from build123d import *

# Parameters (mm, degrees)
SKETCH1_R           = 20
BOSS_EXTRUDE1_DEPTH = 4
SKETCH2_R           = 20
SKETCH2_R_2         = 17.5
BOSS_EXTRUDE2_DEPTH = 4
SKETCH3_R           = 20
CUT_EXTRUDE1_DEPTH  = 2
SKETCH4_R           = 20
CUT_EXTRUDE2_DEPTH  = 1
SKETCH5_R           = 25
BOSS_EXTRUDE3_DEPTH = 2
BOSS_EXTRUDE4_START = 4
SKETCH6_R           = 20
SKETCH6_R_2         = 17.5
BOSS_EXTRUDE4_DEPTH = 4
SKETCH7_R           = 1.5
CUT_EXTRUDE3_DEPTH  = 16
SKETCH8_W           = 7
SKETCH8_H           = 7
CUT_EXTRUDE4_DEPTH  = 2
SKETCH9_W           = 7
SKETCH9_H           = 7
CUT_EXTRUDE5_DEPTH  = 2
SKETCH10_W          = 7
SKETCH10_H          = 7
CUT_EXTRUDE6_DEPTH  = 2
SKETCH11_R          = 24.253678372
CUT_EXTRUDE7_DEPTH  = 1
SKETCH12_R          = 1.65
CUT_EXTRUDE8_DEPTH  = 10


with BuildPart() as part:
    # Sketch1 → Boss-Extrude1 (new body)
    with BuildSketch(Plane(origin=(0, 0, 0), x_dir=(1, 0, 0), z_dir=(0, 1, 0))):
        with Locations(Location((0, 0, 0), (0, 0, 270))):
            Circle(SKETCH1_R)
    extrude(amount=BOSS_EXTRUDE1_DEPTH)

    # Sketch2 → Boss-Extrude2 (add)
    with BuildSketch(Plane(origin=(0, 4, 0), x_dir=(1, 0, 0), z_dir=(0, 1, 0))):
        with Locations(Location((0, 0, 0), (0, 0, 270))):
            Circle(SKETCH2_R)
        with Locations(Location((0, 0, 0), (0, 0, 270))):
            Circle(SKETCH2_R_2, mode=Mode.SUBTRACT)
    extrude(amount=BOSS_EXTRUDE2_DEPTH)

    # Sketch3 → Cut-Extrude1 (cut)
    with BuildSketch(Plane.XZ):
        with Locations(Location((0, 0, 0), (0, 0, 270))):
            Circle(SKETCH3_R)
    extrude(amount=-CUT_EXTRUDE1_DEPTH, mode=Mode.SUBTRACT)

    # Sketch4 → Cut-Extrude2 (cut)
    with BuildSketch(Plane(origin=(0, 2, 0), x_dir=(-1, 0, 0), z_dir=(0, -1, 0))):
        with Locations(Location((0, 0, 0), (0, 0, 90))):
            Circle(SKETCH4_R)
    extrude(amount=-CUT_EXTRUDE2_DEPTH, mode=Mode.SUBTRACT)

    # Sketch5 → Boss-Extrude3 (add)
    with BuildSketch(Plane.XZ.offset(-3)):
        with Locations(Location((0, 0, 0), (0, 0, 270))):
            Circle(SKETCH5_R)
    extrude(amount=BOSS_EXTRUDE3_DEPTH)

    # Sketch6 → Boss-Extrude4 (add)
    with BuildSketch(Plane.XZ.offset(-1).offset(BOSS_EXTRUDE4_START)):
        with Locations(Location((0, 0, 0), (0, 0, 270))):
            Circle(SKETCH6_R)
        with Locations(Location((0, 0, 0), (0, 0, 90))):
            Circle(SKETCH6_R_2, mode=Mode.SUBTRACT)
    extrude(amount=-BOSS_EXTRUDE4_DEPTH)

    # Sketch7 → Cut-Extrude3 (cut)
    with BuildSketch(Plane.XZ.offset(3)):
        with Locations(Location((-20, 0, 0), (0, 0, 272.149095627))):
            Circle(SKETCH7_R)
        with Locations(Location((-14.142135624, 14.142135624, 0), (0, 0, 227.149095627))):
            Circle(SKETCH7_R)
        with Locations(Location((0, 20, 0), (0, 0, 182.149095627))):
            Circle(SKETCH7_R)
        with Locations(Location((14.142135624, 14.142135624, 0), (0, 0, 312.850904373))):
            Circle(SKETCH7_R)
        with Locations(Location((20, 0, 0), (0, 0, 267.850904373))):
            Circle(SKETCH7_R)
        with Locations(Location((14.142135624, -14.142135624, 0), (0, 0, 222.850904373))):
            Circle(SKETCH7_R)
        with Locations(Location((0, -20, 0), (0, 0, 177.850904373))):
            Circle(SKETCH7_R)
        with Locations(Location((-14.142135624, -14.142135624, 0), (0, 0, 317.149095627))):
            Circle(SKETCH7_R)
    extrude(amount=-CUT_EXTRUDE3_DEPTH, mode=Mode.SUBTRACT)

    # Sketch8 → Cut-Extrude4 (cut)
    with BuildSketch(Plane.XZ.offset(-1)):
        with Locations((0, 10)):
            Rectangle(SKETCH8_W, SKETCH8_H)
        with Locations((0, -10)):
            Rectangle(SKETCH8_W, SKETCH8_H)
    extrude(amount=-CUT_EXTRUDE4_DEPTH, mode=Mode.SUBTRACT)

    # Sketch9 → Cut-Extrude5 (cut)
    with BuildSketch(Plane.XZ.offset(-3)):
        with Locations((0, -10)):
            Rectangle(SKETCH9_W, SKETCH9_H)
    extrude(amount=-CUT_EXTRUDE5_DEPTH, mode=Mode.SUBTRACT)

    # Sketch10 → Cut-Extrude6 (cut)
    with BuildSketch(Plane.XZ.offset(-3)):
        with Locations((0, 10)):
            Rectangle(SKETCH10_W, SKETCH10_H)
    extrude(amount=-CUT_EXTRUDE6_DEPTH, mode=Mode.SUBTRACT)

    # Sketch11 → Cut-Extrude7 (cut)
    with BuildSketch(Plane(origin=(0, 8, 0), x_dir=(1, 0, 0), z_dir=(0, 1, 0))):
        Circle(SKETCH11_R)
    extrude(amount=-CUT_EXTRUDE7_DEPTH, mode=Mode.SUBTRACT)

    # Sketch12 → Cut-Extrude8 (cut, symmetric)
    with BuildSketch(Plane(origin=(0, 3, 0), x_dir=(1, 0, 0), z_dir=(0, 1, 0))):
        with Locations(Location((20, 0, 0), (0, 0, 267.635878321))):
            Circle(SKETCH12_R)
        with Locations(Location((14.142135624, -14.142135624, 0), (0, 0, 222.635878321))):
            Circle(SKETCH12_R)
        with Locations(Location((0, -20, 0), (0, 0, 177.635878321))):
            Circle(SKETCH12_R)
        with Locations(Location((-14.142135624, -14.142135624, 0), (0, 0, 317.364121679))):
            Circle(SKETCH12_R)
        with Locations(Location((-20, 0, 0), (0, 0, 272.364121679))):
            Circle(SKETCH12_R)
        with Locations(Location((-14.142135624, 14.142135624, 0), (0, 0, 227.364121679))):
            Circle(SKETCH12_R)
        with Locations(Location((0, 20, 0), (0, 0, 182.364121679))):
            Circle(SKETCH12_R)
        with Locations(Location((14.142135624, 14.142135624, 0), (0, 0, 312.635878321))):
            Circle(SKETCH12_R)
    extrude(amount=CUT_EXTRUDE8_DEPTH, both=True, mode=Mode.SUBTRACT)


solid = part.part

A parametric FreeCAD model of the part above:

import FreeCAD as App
import Part
import Sketcher
from FreeCAD import Vector
Q = App.Units.Quantity

doc = App.newDocument("Part")
params = doc.addObject("Spreadsheet::Sheet", "Params")
for row, (alias, value) in enumerate([
    ("sketch1_diameter", "40 mm"),
    ("pad1_length", "4 mm"),
    ("sketch2_diameter", "40 mm"),
    ("sketch2_diameter2", "35 mm"),
    ("pad2_length", "4 mm"),
    ("sketch3_diameter", "40 mm"),
    ("pocket1_length", "2 mm"),
    ("sketch4_diameter", "40 mm"),
    ("pocket2_length", "1 mm"),
    ("sketch5_diameter", "50 mm"),
    ("pad3_length", "2 mm"),
    ("sketch6_diameter", "40 mm"),
    ("sketch6_diameter2", "35 mm"),
    ("pad4_length", "4 mm"),
    ("sketch7_diameter", "3 mm"),
    ("pocket3_length", "16 mm"),
    ("sketch8_width", "7 mm"),
    ("pocket4_length", "2 mm"),
    ("sketch9_width", "7 mm"),
    ("pocket5_length", "2 mm"),
    ("sketch10_width", "7 mm"),
    ("pocket6_length", "2 mm"),
    ("pocket7_length", "1 mm"),
    ("sketch12_diameter", "3.3 mm"),
    ("pocket8_length", "20 mm"),
], start=1):
    params.set(f"A{row}", alias)
    params.set(f"B{row}", "=" + value)
    params.setAlias(f"B{row}", alias)

body = doc.addObject("PartDesign::Body", "Body")

# Sketch on XZ plane
sketch1 = doc.addObject("Sketcher::SketchObject", "Sketch")
body.addObject(sketch1)
sketch1.AttachmentSupport = (doc.XZ_Plane, [""])
sketch1.MapMode = "FlatFace"
sketch1.addGeometry(Part.Circle(Vector(0, 0, 0), Vector(0, 0, 1), 20), False)
sketch1.addConstraint(Sketcher.Constraint("Coincident", 0, 3, -1, 1))
sketch1.addConstraint(Sketcher.Constraint("Diameter", 0, Q("40 mm")))
sketch1.setExpression("Constraints[1]", "Params.sketch1_diameter")
pad1 = doc.addObject("PartDesign::Pad", "Pad")
body.addObject(pad1)
pad1.Profile = sketch1
pad1.setExpression("Length", "Params.pad1_length")
pad1.Reversed = True

# Sketch on XZ plane
sketch2 = doc.addObject("Sketcher::SketchObject", "Sketch001")
body.addObject(sketch2)
sketch2.AttachmentSupport = (doc.XZ_Plane, [""])
sketch2.MapMode = "FlatFace"
sketch2.AttachmentOffset = App.Placement(Vector(0, 0, -4), App.Rotation())
sketch2.addGeometry(Part.Circle(Vector(0, 0, 0), Vector(0, 0, 1), 20), False)
sketch2.addGeometry(Part.Circle(Vector(0, 0, 0), Vector(0, 0, 1), 17.5), False)
sketch2.addConstraint(Sketcher.Constraint("Coincident", 0, 3, -1, 1))
sketch2.addConstraint(Sketcher.Constraint("Coincident", 1, 3, -1, 1))
sketch2.addConstraint(Sketcher.Constraint("Diameter", 0, Q("40 mm")))
sketch2.addConstraint(Sketcher.Constraint("Diameter", 1, Q("35 mm")))
sketch2.setExpression("Constraints[2]", "Params.sketch2_diameter")
sketch2.setExpression("Constraints[3]", "Params.sketch2_diameter2")
pad2 = doc.addObject("PartDesign::Pad", "Pad001")
body.addObject(pad2)
pad2.Profile = sketch2
pad2.setExpression("Length", "Params.pad2_length")
pad2.Reversed = True

# Sketch on XZ plane
sketch3 = doc.addObject("Sketcher::SketchObject", "Sketch002")
body.addObject(sketch3)
sketch3.AttachmentSupport = (doc.XZ_Plane, [""])
sketch3.MapMode = "FlatFace"
sketch3.addGeometry(Part.Circle(Vector(0, 0, 0), Vector(0, 0, 1), 20), False)
sketch3.addConstraint(Sketcher.Constraint("Coincident", 0, 3, -1, 1))
sketch3.addConstraint(Sketcher.Constraint("Diameter", 0, Q("40 mm")))
sketch3.setExpression("Constraints[1]", "Params.sketch3_diameter")
pocket1 = doc.addObject("PartDesign::Pocket", "Pocket")
body.addObject(pocket1)
pocket1.Profile = sketch3
pocket1.setExpression("Length", "Params.pocket1_length")

# Sketch on XZ plane
sketch4 = doc.addObject("Sketcher::SketchObject", "Sketch003")
body.addObject(sketch4)
sketch4.AttachmentSupport = (doc.XZ_Plane, [""])
sketch4.MapMode = "FlatFace"
sketch4.AttachmentOffset = App.Placement(Vector(0, 0, -2), App.Rotation())
sketch4.addGeometry(Part.Circle(Vector(0, 0, 0), Vector(0, 0, 1), 20), False)
sketch4.addConstraint(Sketcher.Constraint("Coincident", 0, 3, -1, 1))
sketch4.addConstraint(Sketcher.Constraint("Diameter", 0, Q("40 mm")))
sketch4.setExpression("Constraints[1]", "Params.sketch4_diameter")
pocket2 = doc.addObject("PartDesign::Pocket", "Pocket001")
body.addObject(pocket2)
pocket2.Profile = sketch4
pocket2.setExpression("Length", "Params.pocket2_length")

# Sketch on XZ plane
sketch5 = doc.addObject("Sketcher::SketchObject", "Sketch004")
body.addObject(sketch5)
sketch5.AttachmentSupport = (doc.XZ_Plane, [""])
sketch5.MapMode = "FlatFace"
sketch5.AttachmentOffset = App.Placement(Vector(0, 0, -3), App.Rotation())
sketch5.addGeometry(Part.Circle(Vector(0, 0, 0), Vector(0, 0, 1), 25), False)
sketch5.addConstraint(Sketcher.Constraint("Coincident", 0, 3, -1, 1))
sketch5.addConstraint(Sketcher.Constraint("Diameter", 0, Q("50 mm")))
sketch5.setExpression("Constraints[1]", "Params.sketch5_diameter")
pad3 = doc.addObject("PartDesign::Pad", "Pad002")
body.addObject(pad3)
pad3.Profile = sketch5
pad3.setExpression("Length", "Params.pad3_length")

# Sketch on XZ plane
sketch6 = doc.addObject("Sketcher::SketchObject", "Sketch005")
body.addObject(sketch6)
sketch6.AttachmentSupport = (doc.XZ_Plane, [""])
sketch6.MapMode = "FlatFace"
sketch6.AttachmentOffset = App.Placement(Vector(0, 0, 3), App.Rotation())
sketch6.addGeometry(Part.Circle(Vector(0, 0, 0), Vector(0, 0, 1), 20), False)
sketch6.addGeometry(Part.Circle(Vector(0, 0, 0), Vector(0, 0, 1), 17.5), False)
sketch6.addConstraint(Sketcher.Constraint("Coincident", 0, 3, -1, 1))
sketch6.addConstraint(Sketcher.Constraint("Coincident", 1, 3, -1, 1))
sketch6.addConstraint(Sketcher.Constraint("Diameter", 0, Q("40 mm")))
sketch6.addConstraint(Sketcher.Constraint("Diameter", 1, Q("35 mm")))
sketch6.setExpression("Constraints[2]", "Params.sketch6_diameter")
sketch6.setExpression("Constraints[3]", "Params.sketch6_diameter2")
pad4 = doc.addObject("PartDesign::Pad", "Pad003")
body.addObject(pad4)
pad4.Profile = sketch6
pad4.setExpression("Length", "Params.pad4_length")
pad4.Reversed = True

# Sketch on XZ plane
sketch7 = doc.addObject("Sketcher::SketchObject", "Sketch006")
body.addObject(sketch7)
sketch7.AttachmentSupport = (doc.XZ_Plane, [""])
sketch7.MapMode = "FlatFace"
sketch7.AttachmentOffset = App.Placement(Vector(0, 0, 3), App.Rotation())
sketch7.addGeometry(Part.Circle(Vector(-20, 0, 0), Vector(0, 0, 1), 1.5), False)
sketch7.addGeometry(Part.Circle(Vector(-14.142136, 14.142136, 0), Vector(0, 0, 1), 1.5), False)
sketch7.addGeometry(Part.Circle(Vector(0, 20, 0), Vector(0, 0, 1), 1.5), False)
sketch7.addGeometry(Part.Circle(Vector(14.142136, 14.142136, 0), Vector(0, 0, 1), 1.5), False)
sketch7.addGeometry(Part.Circle(Vector(20, 0, 0), Vector(0, 0, 1), 1.5), False)
sketch7.addGeometry(Part.Circle(Vector(14.142136, -14.142136, 0), Vector(0, 0, 1), 1.5), False)
sketch7.addGeometry(Part.Circle(Vector(0, -20, 0), Vector(0, 0, 1), 1.5), False)
sketch7.addGeometry(Part.Circle(Vector(-14.142136, -14.142136, 0), Vector(0, 0, 1), 1.5), False)
sketch7.addConstraint(Sketcher.Constraint("Equal", 0, 1))
sketch7.addConstraint(Sketcher.Constraint("Equal", 1, 2))
sketch7.addConstraint(Sketcher.Constraint("Equal", 2, 3))
sketch7.addConstraint(Sketcher.Constraint("Equal", 3, 4))
sketch7.addConstraint(Sketcher.Constraint("Equal", 4, 5))
sketch7.addConstraint(Sketcher.Constraint("Equal", 5, 6))
sketch7.addConstraint(Sketcher.Constraint("Equal", 6, 7))
sketch7.addConstraint(Sketcher.Constraint("Symmetric", 0, 3, 4, 3, -1, 1))
sketch7.addConstraint(Sketcher.Constraint("Symmetric", 1, 3, 5, 3, -1, 1))
sketch7.addConstraint(Sketcher.Constraint("Symmetric", 2, 3, 6, 3, -1, 1))
sketch7.addConstraint(Sketcher.Constraint("Symmetric", 3, 3, 7, 3, -1, 1))
sketch7.addConstraint(Sketcher.Constraint("Symmetric", 1, 3, 3, 3, -2))
sketch7.addConstraint(Sketcher.Constraint("PointOnObject", 0, 3, -1))
sketch7.addConstraint(Sketcher.Constraint("PointOnObject", 2, 3, -2))
sketch7.addConstraint(Sketcher.Constraint("Diameter", 0, Q("3 mm")))
sketch7.addConstraint(Sketcher.Constraint("DistanceX", 0, 3, -1, 1, Q("20 mm")))
sketch7.addConstraint(Sketcher.Constraint("DistanceY", -1, 1, 2, 3, Q("20 mm")))
sketch7.addConstraint(Sketcher.Constraint("DistanceX", 1, 3, 3, 3, Q("28.284271 mm")))
sketch7.addConstraint(Sketcher.Constraint("DistanceY", 5, 3, 3, 3, Q("28.284271 mm")))
sketch7.setExpression("Constraints[14]", "Params.sketch7_diameter")
pocket3 = doc.addObject("PartDesign::Pocket", "Pocket002")
body.addObject(pocket3)
pocket3.Profile = sketch7
pocket3.setExpression("Length", "Params.pocket3_length")

# Sketch on XZ plane
sketch8 = doc.addObject("Sketcher::SketchObject", "Sketch007")
body.addObject(sketch8)
sketch8.AttachmentSupport = (doc.XZ_Plane, [""])
sketch8.MapMode = "FlatFace"
sketch8.AttachmentOffset = App.Placement(Vector(0, 0, -1), App.Rotation())
sketch8.addGeometry(Part.LineSegment(Vector(-3.5, 13.5, 0), Vector(-3.5, 6.5, 0)), False)
sketch8.addGeometry(Part.LineSegment(Vector(-3.5, 6.5, 0), Vector(3.5, 6.5, 0)), False)
sketch8.addGeometry(Part.LineSegment(Vector(3.5, 6.5, 0), Vector(3.5, 13.5, 0)), False)
sketch8.addGeometry(Part.LineSegment(Vector(3.5, 13.5, 0), Vector(-3.5, 13.5, 0)), False)
sketch8.addGeometry(Part.LineSegment(Vector(-3.5, -6.5, 0), Vector(-3.5, -13.5, 0)), False)
sketch8.addGeometry(Part.LineSegment(Vector(-3.5, -13.5, 0), Vector(3.5, -13.5, 0)), False)
sketch8.addGeometry(Part.LineSegment(Vector(3.5, -13.5, 0), Vector(3.5, -6.5, 0)), False)
sketch8.addGeometry(Part.LineSegment(Vector(3.5, -6.5, 0), Vector(-3.5, -6.5, 0)), False)
sketch8.addConstraint(Sketcher.Constraint("Coincident", 0, 2, 1, 1))
sketch8.addConstraint(Sketcher.Constraint("Coincident", 1, 2, 2, 1))
sketch8.addConstraint(Sketcher.Constraint("Coincident", 2, 2, 3, 1))
sketch8.addConstraint(Sketcher.Constraint("Coincident", 3, 2, 0, 1))
sketch8.addConstraint(Sketcher.Constraint("Coincident", 4, 2, 5, 1))
sketch8.addConstraint(Sketcher.Constraint("Coincident", 5, 2, 6, 1))
sketch8.addConstraint(Sketcher.Constraint("Coincident", 6, 2, 7, 1))
sketch8.addConstraint(Sketcher.Constraint("Coincident", 7, 2, 4, 1))
sketch8.addConstraint(Sketcher.Constraint("Vertical", 0))
sketch8.addConstraint(Sketcher.Constraint("Horizontal", 1))
sketch8.addConstraint(Sketcher.Constraint("Vertical", 2))
sketch8.addConstraint(Sketcher.Constraint("Horizontal", 3))
sketch8.addConstraint(Sketcher.Constraint("Vertical", 4))
sketch8.addConstraint(Sketcher.Constraint("Horizontal", 5))
sketch8.addConstraint(Sketcher.Constraint("Vertical", 6))
sketch8.addConstraint(Sketcher.Constraint("Horizontal", 7))
sketch8.addConstraint(Sketcher.Constraint("Symmetric", 2, 2, 4, 2, -1, 1))
sketch8.addConstraint(Sketcher.Constraint("Symmetric", 0, 2, 6, 2, -1, 1))
sketch8.addConstraint(Sketcher.Constraint("Vertical", 3, 2, 4, 2))
sketch8.addConstraint(Sketcher.Constraint("Equal", 7, 0))
sketch8.addConstraint(Sketcher.Constraint("DistanceX", 1, 1, 1, 2, Q("7 mm")))
sketch8.addConstraint(Sketcher.Constraint("DistanceY", 4, 2, 0, 2, Q("20 mm")))
sketch8.setExpression("Constraints[20]", "Params.sketch8_width")
pocket4 = doc.addObject("PartDesign::Pocket", "Pocket003")
body.addObject(pocket4)
pocket4.Profile = sketch8
pocket4.setExpression("Length", "Params.pocket4_length")

# Sketch on XZ plane
sketch9 = doc.addObject("Sketcher::SketchObject", "Sketch008")
body.addObject(sketch9)
sketch9.AttachmentSupport = (doc.XZ_Plane, [""])
sketch9.MapMode = "FlatFace"
sketch9.AttachmentOffset = App.Placement(Vector(0, 0, -3), App.Rotation())
sketch9.addGeometry(Part.LineSegment(Vector(-3.5, -6.5, 0), Vector(-3.5, -13.5, 0)), False)
sketch9.addGeometry(Part.LineSegment(Vector(-3.5, -13.5, 0), Vector(3.5, -13.5, 0)), False)
sketch9.addGeometry(Part.LineSegment(Vector(3.5, -13.5, 0), Vector(3.5, -6.5, 0)), False)
sketch9.addGeometry(Part.LineSegment(Vector(3.5, -6.5, 0), Vector(-3.5, -6.5, 0)), False)
sketch9.addConstraint(Sketcher.Constraint("Coincident", 0, 2, 1, 1))
sketch9.addConstraint(Sketcher.Constraint("Coincident", 1, 2, 2, 1))
sketch9.addConstraint(Sketcher.Constraint("Coincident", 2, 2, 3, 1))
sketch9.addConstraint(Sketcher.Constraint("Coincident", 3, 2, 0, 1))
sketch9.addConstraint(Sketcher.Constraint("Vertical", 0))
sketch9.addConstraint(Sketcher.Constraint("Horizontal", 1))
sketch9.addConstraint(Sketcher.Constraint("Vertical", 2))
sketch9.addConstraint(Sketcher.Constraint("Horizontal", 3))
sketch9.addConstraint(Sketcher.Constraint("Equal", 3, 0))
sketch9.addConstraint(Sketcher.Constraint("DistanceX", 1, 1, 1, 2, Q("7 mm")))
sketch9.addConstraint(Sketcher.Constraint("DistanceX", 0, 2, -1, 1, Q("3.5 mm")))
sketch9.addConstraint(Sketcher.Constraint("DistanceY", 0, 2, -1, 1, Q("13.5 mm")))
sketch9.setExpression("Constraints[9]", "Params.sketch9_width")
pocket5 = doc.addObject("PartDesign::Pocket", "Pocket004")
body.addObject(pocket5)
pocket5.Profile = sketch9
pocket5.setExpression("Length", "Params.pocket5_length")

# Sketch on XZ plane
sketch10 = doc.addObject("Sketcher::SketchObject", "Sketch009")
body.addObject(sketch10)
sketch10.AttachmentSupport = (doc.XZ_Plane, [""])
sketch10.MapMode = "FlatFace"
sketch10.AttachmentOffset = App.Placement(Vector(0, 0, -3), App.Rotation())
sketch10.addGeometry(Part.LineSegment(Vector(-3.5, 13.5, 0), Vector(-3.5, 6.5, 0)), False)
sketch10.addGeometry(Part.LineSegment(Vector(-3.5, 6.5, 0), Vector(3.5, 6.5, 0)), False)
sketch10.addGeometry(Part.LineSegment(Vector(3.5, 6.5, 0), Vector(3.5, 13.5, 0)), False)
sketch10.addGeometry(Part.LineSegment(Vector(3.5, 13.5, 0), Vector(-3.5, 13.5, 0)), False)
sketch10.addConstraint(Sketcher.Constraint("Coincident", 0, 2, 1, 1))
sketch10.addConstraint(Sketcher.Constraint("Coincident", 1, 2, 2, 1))
sketch10.addConstraint(Sketcher.Constraint("Coincident", 2, 2, 3, 1))
sketch10.addConstraint(Sketcher.Constraint("Coincident", 3, 2, 0, 1))
sketch10.addConstraint(Sketcher.Constraint("Vertical", 0))
sketch10.addConstraint(Sketcher.Constraint("Horizontal", 1))
sketch10.addConstraint(Sketcher.Constraint("Vertical", 2))
sketch10.addConstraint(Sketcher.Constraint("Horizontal", 3))
sketch10.addConstraint(Sketcher.Constraint("Equal", 3, 0))
sketch10.addConstraint(Sketcher.Constraint("DistanceX", 1, 1, 1, 2, Q("7 mm")))
sketch10.addConstraint(Sketcher.Constraint("DistanceX", 0, 2, -1, 1, Q("3.5 mm")))
sketch10.addConstraint(Sketcher.Constraint("DistanceY", -1, 1, 0, 2, Q("6.5 mm")))
sketch10.setExpression("Constraints[9]", "Params.sketch10_width")
pocket6 = doc.addObject("PartDesign::Pocket", "Pocket005")
body.addObject(pocket6)
pocket6.Profile = sketch10
pocket6.setExpression("Length", "Params.pocket6_length")

# Sketch on XZ plane
sketch11 = doc.addObject("Sketcher::SketchObject", "Sketch010")
body.addObject(sketch11)
sketch11.AttachmentSupport = (doc.XZ_Plane, [""])
sketch11.MapMode = "FlatFace"
sketch11.AttachmentOffset = App.Placement(Vector(0, 0, -8), App.Rotation())
sketch11.addGeometry(Part.Circle(Vector(0, 0, 0), Vector(0, 0, 1), 24.253678), False)
sketch11.addConstraint(Sketcher.Constraint("Coincident", 0, 3, -1, 1))
sketch11.addConstraint(Sketcher.Constraint("Diameter", 0, Q("48.507357 mm")))
pocket7 = doc.addObject("PartDesign::Pocket", "Pocket006")
body.addObject(pocket7)
pocket7.Profile = sketch11
pocket7.setExpression("Length", "Params.pocket7_length")
pocket7.Reversed = True

# Sketch on XZ plane
sketch12 = doc.addObject("Sketcher::SketchObject", "Sketch011")
body.addObject(sketch12)
sketch12.AttachmentSupport = (doc.XZ_Plane, [""])
sketch12.MapMode = "FlatFace"
sketch12.AttachmentOffset = App.Placement(Vector(0, 0, -3), App.Rotation())
sketch12.addGeometry(Part.Circle(Vector(20, 0, 0), Vector(0, 0, 1), 1.65), False)
sketch12.addGeometry(Part.Circle(Vector(14.142136, 14.142136, 0), Vector(0, 0, 1), 1.65), False)
sketch12.addGeometry(Part.Circle(Vector(0, 20, 0), Vector(0, 0, 1), 1.65), False)
sketch12.addGeometry(Part.Circle(Vector(-14.142136, 14.142136, 0), Vector(0, 0, 1), 1.65), False)
sketch12.addGeometry(Part.Circle(Vector(-20, 0, 0), Vector(0, 0, 1), 1.65), False)
sketch12.addGeometry(Part.Circle(Vector(-14.142136, -14.142136, 0), Vector(0, 0, 1), 1.65), False)
sketch12.addGeometry(Part.Circle(Vector(0, -20, 0), Vector(0, 0, 1), 1.65), False)
sketch12.addGeometry(Part.Circle(Vector(14.142136, -14.142136, 0), Vector(0, 0, 1), 1.65), False)
sketch12.addConstraint(Sketcher.Constraint("Equal", 0, 1))
sketch12.addConstraint(Sketcher.Constraint("Equal", 1, 2))
sketch12.addConstraint(Sketcher.Constraint("Equal", 2, 3))
sketch12.addConstraint(Sketcher.Constraint("Equal", 3, 4))
sketch12.addConstraint(Sketcher.Constraint("Equal", 4, 5))
sketch12.addConstraint(Sketcher.Constraint("Equal", 5, 6))
sketch12.addConstraint(Sketcher.Constraint("Equal", 6, 7))
sketch12.addConstraint(Sketcher.Constraint("Symmetric", 0, 3, 4, 3, -1, 1))
sketch12.addConstraint(Sketcher.Constraint("Symmetric", 1, 3, 5, 3, -1, 1))
sketch12.addConstraint(Sketcher.Constraint("Symmetric", 2, 3, 6, 3, -1, 1))
sketch12.addConstraint(Sketcher.Constraint("Symmetric", 3, 3, 7, 3, -1, 1))
sketch12.addConstraint(Sketcher.Constraint("Symmetric", 1, 3, 3, 3, -2))
sketch12.addConstraint(Sketcher.Constraint("PointOnObject", 0, 3, -1))
sketch12.addConstraint(Sketcher.Constraint("PointOnObject", 2, 3, -2))
sketch12.addConstraint(Sketcher.Constraint("Diameter", 0, Q("3.3 mm")))
sketch12.addConstraint(Sketcher.Constraint("DistanceX", -1, 1, 0, 3, Q("20 mm")))
sketch12.addConstraint(Sketcher.Constraint("DistanceY", -1, 1, 2, 3, Q("20 mm")))
sketch12.addConstraint(Sketcher.Constraint("DistanceX", 3, 3, 1, 3, Q("28.284271 mm")))
sketch12.addConstraint(Sketcher.Constraint("DistanceY", 5, 3, 3, 3, Q("28.284271 mm")))
sketch12.setExpression("Constraints[14]", "Params.sketch12_diameter")
pocket8 = doc.addObject("PartDesign::Pocket", "Pocket007")
body.addObject(pocket8)
pocket8.Profile = sketch12
pocket8.setExpression("Length", "Params.pocket8_length")
pocket8.Midplane = True

doc.recompute()
